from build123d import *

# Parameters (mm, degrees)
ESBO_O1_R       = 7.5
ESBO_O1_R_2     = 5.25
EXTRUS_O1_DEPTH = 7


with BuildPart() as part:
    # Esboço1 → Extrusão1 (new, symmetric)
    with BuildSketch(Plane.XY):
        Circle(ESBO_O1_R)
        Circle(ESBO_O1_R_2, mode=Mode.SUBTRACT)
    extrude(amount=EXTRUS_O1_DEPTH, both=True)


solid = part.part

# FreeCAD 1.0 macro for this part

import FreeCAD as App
import Part
import Sketcher

V = App.Vector
Q = App.Units.Quantity

doc = App.newDocument("Part")
body = doc.addObject("PartDesign::Body", "Body")

sketch1 = body.newObject("Sketcher::SketchObject", "Sketch")
sketch1.AttachmentSupport = (doc.getObject("XY_Plane"), [""])
sketch1.MapMode = "FlatFace"
sketch1.addGeometry([
    Part.Circle(V(0, 0, 0), V(0, 0, 1), 7.5),
    Part.Circle(V(0, 0, 0), V(0, 0, 1), 5.25),
], False)
sketch1.addConstraint([
    Sketcher.Constraint("Coincident", 0, 3, -1, 1),
    Sketcher.Constraint("Coincident", 1, 3, -1, 1),
    Sketcher.Constraint("Diameter", 0, Q("15 mm")),
    Sketcher.Constraint("Diameter", 1, Q("10.5 mm")),
])
pad1 = body.newObject("PartDesign::Pad", "Pad")
pad1.Profile = sketch1
pad1.Length = 14
pad1.Midplane = True

doc.recompute()
